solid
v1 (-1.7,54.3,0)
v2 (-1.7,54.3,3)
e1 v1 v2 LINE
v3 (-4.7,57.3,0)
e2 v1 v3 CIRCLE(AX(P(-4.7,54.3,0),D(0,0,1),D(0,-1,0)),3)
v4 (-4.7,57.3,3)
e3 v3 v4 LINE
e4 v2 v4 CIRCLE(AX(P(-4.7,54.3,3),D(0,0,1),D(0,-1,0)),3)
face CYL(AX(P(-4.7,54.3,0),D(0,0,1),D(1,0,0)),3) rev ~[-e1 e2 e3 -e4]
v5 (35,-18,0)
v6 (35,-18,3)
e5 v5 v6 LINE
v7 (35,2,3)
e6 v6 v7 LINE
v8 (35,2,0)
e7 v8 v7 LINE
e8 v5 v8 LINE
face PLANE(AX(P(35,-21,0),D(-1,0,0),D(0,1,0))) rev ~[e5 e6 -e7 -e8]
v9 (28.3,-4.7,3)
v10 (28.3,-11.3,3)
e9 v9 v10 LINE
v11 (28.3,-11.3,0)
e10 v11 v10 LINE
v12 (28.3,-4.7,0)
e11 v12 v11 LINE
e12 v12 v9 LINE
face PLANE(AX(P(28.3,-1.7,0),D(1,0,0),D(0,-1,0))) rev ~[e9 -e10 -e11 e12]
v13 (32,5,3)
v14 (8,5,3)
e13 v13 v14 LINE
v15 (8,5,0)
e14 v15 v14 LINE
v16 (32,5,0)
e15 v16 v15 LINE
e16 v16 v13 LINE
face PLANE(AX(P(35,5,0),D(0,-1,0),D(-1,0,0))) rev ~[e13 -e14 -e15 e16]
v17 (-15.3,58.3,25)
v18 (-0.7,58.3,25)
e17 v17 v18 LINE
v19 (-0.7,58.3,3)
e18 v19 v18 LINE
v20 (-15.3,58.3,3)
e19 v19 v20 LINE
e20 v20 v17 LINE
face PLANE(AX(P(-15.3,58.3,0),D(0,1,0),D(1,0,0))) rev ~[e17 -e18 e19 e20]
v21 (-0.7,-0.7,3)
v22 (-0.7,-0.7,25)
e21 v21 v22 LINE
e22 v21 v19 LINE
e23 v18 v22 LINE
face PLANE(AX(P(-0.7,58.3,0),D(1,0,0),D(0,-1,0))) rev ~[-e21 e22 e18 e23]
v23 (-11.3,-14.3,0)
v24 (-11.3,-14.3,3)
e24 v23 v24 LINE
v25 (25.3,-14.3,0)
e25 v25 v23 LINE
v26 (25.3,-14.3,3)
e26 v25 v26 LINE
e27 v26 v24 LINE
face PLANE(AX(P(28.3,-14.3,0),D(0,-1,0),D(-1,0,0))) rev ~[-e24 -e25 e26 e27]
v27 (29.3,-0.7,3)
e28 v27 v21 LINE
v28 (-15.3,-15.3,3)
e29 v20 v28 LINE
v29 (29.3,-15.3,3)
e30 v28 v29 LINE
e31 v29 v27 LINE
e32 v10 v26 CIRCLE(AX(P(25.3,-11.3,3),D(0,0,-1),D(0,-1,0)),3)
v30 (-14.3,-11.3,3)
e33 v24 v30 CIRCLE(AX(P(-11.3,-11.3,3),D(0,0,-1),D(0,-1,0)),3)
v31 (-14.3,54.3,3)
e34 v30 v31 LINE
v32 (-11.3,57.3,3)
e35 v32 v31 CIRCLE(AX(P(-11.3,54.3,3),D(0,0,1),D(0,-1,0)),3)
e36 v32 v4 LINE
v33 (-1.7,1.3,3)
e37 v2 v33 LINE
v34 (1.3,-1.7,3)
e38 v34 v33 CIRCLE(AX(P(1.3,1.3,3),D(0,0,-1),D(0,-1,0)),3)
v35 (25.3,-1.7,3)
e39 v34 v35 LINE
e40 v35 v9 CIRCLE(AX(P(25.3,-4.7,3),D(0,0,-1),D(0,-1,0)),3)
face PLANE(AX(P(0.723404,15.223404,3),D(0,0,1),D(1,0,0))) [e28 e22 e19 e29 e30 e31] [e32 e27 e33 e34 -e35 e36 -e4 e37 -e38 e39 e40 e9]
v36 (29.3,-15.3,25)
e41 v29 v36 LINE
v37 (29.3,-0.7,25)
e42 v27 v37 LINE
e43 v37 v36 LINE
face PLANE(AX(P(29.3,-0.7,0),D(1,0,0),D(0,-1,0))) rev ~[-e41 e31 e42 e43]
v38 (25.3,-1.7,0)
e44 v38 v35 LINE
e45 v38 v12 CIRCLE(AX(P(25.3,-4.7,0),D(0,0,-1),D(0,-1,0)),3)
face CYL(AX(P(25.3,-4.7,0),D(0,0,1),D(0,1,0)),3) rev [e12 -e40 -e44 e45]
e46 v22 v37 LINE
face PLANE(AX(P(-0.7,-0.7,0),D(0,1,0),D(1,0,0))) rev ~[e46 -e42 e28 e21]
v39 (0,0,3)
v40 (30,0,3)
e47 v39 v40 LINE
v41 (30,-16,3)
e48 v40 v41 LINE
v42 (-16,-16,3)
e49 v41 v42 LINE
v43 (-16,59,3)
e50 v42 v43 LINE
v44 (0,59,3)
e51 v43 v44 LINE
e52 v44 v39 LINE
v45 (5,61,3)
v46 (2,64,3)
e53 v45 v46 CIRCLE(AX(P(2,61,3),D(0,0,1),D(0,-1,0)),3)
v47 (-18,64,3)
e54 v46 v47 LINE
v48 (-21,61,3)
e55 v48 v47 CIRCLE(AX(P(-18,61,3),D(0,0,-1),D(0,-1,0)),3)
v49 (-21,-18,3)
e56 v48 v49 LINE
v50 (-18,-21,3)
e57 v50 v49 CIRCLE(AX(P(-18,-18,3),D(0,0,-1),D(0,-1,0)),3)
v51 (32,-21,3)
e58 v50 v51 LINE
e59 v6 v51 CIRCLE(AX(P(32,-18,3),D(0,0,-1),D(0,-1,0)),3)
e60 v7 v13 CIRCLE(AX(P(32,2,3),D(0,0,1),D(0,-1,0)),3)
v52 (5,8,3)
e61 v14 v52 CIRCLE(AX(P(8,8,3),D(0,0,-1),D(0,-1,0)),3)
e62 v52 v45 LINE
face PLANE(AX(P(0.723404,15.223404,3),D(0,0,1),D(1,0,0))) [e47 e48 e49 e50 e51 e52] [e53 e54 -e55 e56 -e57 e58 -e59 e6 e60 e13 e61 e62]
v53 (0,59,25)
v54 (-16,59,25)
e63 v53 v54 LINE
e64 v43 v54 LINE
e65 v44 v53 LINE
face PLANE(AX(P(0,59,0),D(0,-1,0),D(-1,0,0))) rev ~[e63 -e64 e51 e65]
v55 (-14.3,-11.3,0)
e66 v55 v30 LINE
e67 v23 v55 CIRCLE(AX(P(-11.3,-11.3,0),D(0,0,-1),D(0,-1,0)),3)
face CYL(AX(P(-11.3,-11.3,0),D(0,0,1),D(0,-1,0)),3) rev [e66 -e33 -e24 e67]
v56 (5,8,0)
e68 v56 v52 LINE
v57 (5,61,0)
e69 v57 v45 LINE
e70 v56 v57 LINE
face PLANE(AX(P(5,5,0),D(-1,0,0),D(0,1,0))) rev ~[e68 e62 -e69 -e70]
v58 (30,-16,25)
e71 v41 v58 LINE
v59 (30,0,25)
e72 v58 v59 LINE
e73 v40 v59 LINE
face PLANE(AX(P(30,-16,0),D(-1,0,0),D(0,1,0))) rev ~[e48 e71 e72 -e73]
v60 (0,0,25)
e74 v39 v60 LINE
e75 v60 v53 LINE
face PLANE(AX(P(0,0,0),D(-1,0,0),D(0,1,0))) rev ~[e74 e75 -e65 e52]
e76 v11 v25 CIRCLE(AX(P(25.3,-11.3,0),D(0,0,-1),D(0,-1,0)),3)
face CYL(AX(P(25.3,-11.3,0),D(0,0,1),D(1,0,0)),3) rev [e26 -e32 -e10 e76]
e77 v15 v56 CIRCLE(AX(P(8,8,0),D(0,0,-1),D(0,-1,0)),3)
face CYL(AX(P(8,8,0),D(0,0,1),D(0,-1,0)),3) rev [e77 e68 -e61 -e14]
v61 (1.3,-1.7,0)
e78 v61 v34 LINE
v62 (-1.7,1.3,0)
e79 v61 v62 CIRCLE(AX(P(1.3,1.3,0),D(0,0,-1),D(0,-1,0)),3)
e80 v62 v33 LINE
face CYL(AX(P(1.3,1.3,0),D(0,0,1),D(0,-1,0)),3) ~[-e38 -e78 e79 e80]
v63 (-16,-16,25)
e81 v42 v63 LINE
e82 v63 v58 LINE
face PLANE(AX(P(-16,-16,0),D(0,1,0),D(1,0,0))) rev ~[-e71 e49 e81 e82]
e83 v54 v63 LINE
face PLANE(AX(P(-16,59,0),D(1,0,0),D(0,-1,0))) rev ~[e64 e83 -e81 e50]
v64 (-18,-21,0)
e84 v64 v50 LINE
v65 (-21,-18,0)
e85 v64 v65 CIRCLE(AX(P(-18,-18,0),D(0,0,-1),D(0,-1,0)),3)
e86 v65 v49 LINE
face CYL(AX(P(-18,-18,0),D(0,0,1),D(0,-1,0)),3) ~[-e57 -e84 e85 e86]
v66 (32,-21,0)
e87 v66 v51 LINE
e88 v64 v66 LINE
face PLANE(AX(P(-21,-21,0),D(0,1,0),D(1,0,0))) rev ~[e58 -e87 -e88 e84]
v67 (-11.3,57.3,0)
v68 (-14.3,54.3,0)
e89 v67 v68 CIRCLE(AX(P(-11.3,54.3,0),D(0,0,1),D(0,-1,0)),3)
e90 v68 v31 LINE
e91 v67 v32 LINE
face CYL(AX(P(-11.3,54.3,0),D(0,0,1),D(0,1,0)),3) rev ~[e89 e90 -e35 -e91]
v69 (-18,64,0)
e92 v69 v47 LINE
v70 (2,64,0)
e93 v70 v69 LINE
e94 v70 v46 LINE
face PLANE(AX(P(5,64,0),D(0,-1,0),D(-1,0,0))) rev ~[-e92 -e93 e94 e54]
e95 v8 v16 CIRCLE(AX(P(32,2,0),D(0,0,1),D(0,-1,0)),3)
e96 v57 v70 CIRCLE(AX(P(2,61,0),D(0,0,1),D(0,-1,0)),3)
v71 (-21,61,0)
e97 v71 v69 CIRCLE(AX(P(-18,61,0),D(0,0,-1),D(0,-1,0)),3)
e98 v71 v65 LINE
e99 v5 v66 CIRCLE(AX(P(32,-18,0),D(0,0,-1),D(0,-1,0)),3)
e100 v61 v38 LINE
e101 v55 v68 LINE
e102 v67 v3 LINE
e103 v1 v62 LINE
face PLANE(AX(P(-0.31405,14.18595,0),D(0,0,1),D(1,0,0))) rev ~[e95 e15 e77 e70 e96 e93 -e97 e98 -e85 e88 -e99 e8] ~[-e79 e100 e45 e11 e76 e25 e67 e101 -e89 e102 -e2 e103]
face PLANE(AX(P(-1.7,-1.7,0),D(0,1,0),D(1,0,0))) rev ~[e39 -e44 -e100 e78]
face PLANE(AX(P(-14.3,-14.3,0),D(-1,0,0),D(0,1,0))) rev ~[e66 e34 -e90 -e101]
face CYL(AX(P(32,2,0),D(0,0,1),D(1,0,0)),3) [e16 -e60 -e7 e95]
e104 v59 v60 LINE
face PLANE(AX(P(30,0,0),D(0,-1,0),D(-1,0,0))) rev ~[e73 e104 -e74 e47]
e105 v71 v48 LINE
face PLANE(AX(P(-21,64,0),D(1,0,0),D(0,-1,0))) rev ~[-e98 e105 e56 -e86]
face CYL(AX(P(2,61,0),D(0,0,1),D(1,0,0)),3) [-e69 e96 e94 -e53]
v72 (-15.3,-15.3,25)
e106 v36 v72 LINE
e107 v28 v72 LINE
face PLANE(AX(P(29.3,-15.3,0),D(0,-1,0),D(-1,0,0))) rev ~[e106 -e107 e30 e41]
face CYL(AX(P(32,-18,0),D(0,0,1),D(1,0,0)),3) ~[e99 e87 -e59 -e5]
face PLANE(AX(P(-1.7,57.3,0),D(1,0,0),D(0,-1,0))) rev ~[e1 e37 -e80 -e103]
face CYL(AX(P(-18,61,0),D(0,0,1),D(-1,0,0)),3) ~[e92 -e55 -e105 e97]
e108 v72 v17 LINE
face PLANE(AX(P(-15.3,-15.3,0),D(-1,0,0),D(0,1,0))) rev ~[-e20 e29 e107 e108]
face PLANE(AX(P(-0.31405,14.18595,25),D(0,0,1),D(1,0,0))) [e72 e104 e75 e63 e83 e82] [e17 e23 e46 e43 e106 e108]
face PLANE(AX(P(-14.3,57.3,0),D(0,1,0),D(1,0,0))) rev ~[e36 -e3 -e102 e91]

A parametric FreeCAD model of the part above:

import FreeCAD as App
import Part
import Sketcher

V = App.Vector
Q = App.Units.Quantity


def edges_at(feature, points):
    """Names of the edges that pass closest to the given points."""
    edges = feature.Shape.Edges
    near = lambda p: min(range(len(edges)), key=lambda i: edges[i].distToShape(Part.Vertex(*p))[0])
    return sorted({f"Edge{near(p) + 1}" for p in points})


def add_polygon(sketch, points):
    """Adds a closed chain of lines whose ends are joined by coincident constraints."""
    first, n = sketch.GeometryCount, len(points)
    for a, b in zip(points, points[1:] + points[:1]):
        sketch.addGeometry(Part.LineSegment(App.Vector(*a, 0), App.Vector(*b, 0)), False)
    for i in range(n):
        sketch.addConstraint(Sketcher.Constraint("Coincident", first + i, 2, first + (i + 1) % n, 1))

doc = App.newDocument("Part")
body = doc.addObject("PartDesign::Body", "Body")

# Sketch on XY plane
sketch1 = body.newObject("Sketcher::SketchObject", "Sketch")
sketch1.AttachmentSupport = (doc.getObject("XY_Plane"), [""])
sketch1.MapMode = "FlatFace"
add_polygon(sketch1, [(35, -21), (35, 5), (5, 5), (5, 64), (-21, 64), (-21, -21)])  # lines 0-5
add_polygon(sketch1, [(-2, -2), (28, -2), (28, -14), (-14, -14), (-14, 57), (-2, 57)])  # lines 6-11
sketch1.addConstraint([
    Sketcher.Constraint("Vertical", 0),
    Sketcher.Constraint("Horizontal", 1),
    Sketcher.Constraint("Vertical", 2),
    Sketcher.Constraint("Horizontal", 3),
    Sketcher.Constraint("Vertical", 4),
    Sketcher.Constraint("Horizontal", 5),
    Sketcher.Constraint("Horizontal", 6),
    Sketcher.Constraint("Vertical", 7),
    Sketcher.Constraint("Horizontal", 8),
    Sketcher.Constraint("Vertical", 9),
    Sketcher.Constraint("Horizontal", 10),
    Sketcher.Constraint("Vertical", 11),
    Sketcher.Constraint("Equal", 1, 6),
    Sketcher.Constraint("Equal", 3, 0),
    Sketcher.Constraint("Equal", 10, 7),
    Sketcher.Constraint("Equal", 2, 11),
    Sketcher.Constraint("DistanceX", 1, 2, 1, 1, Q("30 mm")),
    Sketcher.Constraint("DistanceX", 3, 2, 3, 1, Q("25.999999 mm")),
    Sketcher.Constraint("DistanceY", 2, 1, 2, 2, Q("59 mm")),
    Sketcher.Constraint("DistanceX", 8, 2, 8, 1, Q("42.6 mm")),
    Sketcher.Constraint("DistanceX", -1, 1, 0, 2, Q("35 mm")),
    Sketcher.Constraint("DistanceY", -1, 1, 0, 2, Q("5 mm")),
    Sketcher.Constraint("DistanceX", -1, 1, 6, 2, Q("28.3 mm")),
    Sketcher.Constraint("DistanceY", 6, 2, -1, 1, Q("1.7 mm")),
])
pad1 = body.newObject("PartDesign::Pad", "Pad")
pad1.Profile = sketch1
pad1.Length = 3

# Sketch on XY plane
sketch2 = body.newObject("Sketcher::SketchObject", "Sketch001")
sketch2.AttachmentSupport = (doc.getObject("XY_Plane"), [""])
sketch2.MapMode = "FlatFace"
add_polygon(sketch2, [(30, 0), (0, 0), (0, 59), (-16, 59), (-16, -16), (30, -16)])  # lines 0-5
add_polygon(sketch2, [(-15, -15), (-15, 58), (-1, 58), (-1, -1), (29, -1), (29, -15)])  # lines 6-11
sketch2.addConstraint([
    Sketcher.Constraint("Horizontal", 0),
    Sketcher.Constraint("Vertical", 1),
    Sketcher.Constraint("Horizontal", 2),
    Sketcher.Constraint("Vertical", 3),
    Sketcher.Constraint("Horizontal", 4),
    Sketcher.Constraint("Vertical", 5),
    Sketcher.Constraint("Vertical", 6),
    Sketcher.Constraint("Horizontal", 7),
    Sketcher.Constraint("Vertical", 8),
    Sketcher.Constraint("Horizontal", 9),
    Sketcher.Constraint("Vertical", 10),
    Sketcher.Constraint("Horizontal", 11),
    Sketcher.Constraint("Coincident", 0, 2, -1, 1),
    Sketcher.Constraint("Equal", 0, 9),
    Sketcher.Constraint("Equal", 2, 5),
    Sketcher.Constraint("Equal", 1, 8),
    Sketcher.Constraint("Equal", 7, 10),
    Sketcher.Constraint("DistanceX", 0, 2, 0, 1, Q("30 mm")),
    Sketcher.Constraint("DistanceX", 2, 2, 2, 1, Q("16 mm")),
    Sketcher.Constraint("DistanceY", 1, 1, 1, 2, Q("59 mm")),
    Sketcher.Constraint("DistanceX", 7, 1, 7, 2, Q("14.6 mm")),
    Sketcher.Constraint("DistanceX", 6, 2, -1, 1, Q("15.3 mm")),
    Sketcher.Constraint("DistanceY", -1, 1, 6, 2, Q("58.3 mm")),
])
pad2 = body.newObject("PartDesign::Pad", "Pad001")
pad2.Profile = sketch2
pad2.Length = 25
doc.recompute()

fillet = body.newObject("PartDesign::Fillet", "Fillet")
fillet.Base = (pad2, edges_at(pad2, [
    (35, -21, 1.5),
    (35, 5, 1.5),
    (5, 5, 1.5),
    (5, 64, 1.5),
    (-21, 64, 1.5),
    (-21, -21, 1.5),
    (-14.3, -14.3, 1.5),
    (-1.7, -1.7, 1.5),
    (28.3, -14.3, 1.5),
    (28.3, -1.7, 1.5),
    (-1.7, 57.3, 1.5),
    (-14.3, 57.3, 1.5),
]))
fillet.Radius = 3

doc.recompute()
